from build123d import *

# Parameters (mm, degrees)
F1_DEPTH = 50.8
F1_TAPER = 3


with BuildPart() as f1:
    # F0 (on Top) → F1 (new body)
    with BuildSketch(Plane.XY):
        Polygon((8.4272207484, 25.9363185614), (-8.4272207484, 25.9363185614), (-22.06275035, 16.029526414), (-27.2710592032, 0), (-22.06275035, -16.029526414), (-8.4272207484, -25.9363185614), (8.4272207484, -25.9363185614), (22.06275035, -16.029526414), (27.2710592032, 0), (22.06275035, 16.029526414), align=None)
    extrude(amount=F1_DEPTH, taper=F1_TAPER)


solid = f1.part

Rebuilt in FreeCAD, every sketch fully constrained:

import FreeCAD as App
import Part
import Sketcher
from FreeCAD import Vector
Q = App.Units.Quantity


def add_polygon(sketch, points):
    """Adds a closed chain of lines whose ends are joined by coincident constraints."""
    first, n = sketch.GeometryCount, len(points)
    for a, b in zip(points, points[1:] + points[:1]):
        sketch.addGeometry(Part.LineSegment(App.Vector(*a, 0), App.Vector(*b, 0)), False)
    for i in range(n):
        sketch.addConstraint(Sketcher.Constraint("Coincident", first + i, 2, first + (i + 1) % n, 1))

doc = App.newDocument("Part")
params = doc.addObject("Spreadsheet::Sheet", "Params")
for row, (alias, value) in enumerate([
    ("pad1_length", "2 in"),
    ("pad1_taper", "-3 deg"),
], start=1):
    params.set(f"A{row}", alias)
    params.set(f"B{row}", "=" + value)
    params.setAlias(f"B{row}", alias)

body = doc.addObject("PartDesign::Body", "Body")

# Sketch on XY plane
sketch1 = body.newObject("Sketcher::SketchObject", "Sketch")
sketch1.AttachmentSupport = (doc.getObject("XY_Plane"), [""])
sketch1.MapMode = "FlatFace"
add_polygon(sketch1, [(8, 26), (-8, 26), (-22, 16), (-27, 0), (-22, -16), (-8, -26), (8, -26), (22, -16), (27, 0), (22, 16)])  # lines 0-9
sketch1.addConstraint([
    Sketcher.Constraint("Horizontal", 0),
    Sketcher.Constraint("Horizontal", 5),
    Sketcher.Constraint("Symmetric", 0, 2, 5, 2, -1, 1),
    Sketcher.Constraint("Symmetric", 1, 2, 6, 2, -1, 1),
    Sketcher.Constraint("Symmetric", 2, 2, 7, 2, -1, 1),
    Sketcher.Constraint("Symmetric", 3, 2, 8, 2, -1, 1),
    Sketcher.Constraint("Symmetric", 3, 2, 6, 2, -2),
    Sketcher.Constraint("PointOnObject", 2, 2, -1),
    Sketcher.Constraint("Parallel", 4, 9),
    Sketcher.Constraint("Vertical", 0, 2, 4, 2),
    Sketcher.Constraint("Equal", 1, 2),
    Sketcher.Constraint("Angle", 1, Q("-144 deg")),
    Sketcher.Constraint("Angle", 2, Q("-108 deg")),
    Sketcher.Constraint("DistanceX", 0, 2, 0, 1, 16.854441),
    Sketcher.Constraint("DistanceX", 3, 2, 6, 2, 44.125501),
])
pad1 = body.newObject("PartDesign::Pad", "Pad")
pad1.Profile = sketch1
pad1.setExpression("Length", "Params.pad1_length")
pad1.setExpression("TaperAngle", "Params.pad1_taper")

doc.recompute()
